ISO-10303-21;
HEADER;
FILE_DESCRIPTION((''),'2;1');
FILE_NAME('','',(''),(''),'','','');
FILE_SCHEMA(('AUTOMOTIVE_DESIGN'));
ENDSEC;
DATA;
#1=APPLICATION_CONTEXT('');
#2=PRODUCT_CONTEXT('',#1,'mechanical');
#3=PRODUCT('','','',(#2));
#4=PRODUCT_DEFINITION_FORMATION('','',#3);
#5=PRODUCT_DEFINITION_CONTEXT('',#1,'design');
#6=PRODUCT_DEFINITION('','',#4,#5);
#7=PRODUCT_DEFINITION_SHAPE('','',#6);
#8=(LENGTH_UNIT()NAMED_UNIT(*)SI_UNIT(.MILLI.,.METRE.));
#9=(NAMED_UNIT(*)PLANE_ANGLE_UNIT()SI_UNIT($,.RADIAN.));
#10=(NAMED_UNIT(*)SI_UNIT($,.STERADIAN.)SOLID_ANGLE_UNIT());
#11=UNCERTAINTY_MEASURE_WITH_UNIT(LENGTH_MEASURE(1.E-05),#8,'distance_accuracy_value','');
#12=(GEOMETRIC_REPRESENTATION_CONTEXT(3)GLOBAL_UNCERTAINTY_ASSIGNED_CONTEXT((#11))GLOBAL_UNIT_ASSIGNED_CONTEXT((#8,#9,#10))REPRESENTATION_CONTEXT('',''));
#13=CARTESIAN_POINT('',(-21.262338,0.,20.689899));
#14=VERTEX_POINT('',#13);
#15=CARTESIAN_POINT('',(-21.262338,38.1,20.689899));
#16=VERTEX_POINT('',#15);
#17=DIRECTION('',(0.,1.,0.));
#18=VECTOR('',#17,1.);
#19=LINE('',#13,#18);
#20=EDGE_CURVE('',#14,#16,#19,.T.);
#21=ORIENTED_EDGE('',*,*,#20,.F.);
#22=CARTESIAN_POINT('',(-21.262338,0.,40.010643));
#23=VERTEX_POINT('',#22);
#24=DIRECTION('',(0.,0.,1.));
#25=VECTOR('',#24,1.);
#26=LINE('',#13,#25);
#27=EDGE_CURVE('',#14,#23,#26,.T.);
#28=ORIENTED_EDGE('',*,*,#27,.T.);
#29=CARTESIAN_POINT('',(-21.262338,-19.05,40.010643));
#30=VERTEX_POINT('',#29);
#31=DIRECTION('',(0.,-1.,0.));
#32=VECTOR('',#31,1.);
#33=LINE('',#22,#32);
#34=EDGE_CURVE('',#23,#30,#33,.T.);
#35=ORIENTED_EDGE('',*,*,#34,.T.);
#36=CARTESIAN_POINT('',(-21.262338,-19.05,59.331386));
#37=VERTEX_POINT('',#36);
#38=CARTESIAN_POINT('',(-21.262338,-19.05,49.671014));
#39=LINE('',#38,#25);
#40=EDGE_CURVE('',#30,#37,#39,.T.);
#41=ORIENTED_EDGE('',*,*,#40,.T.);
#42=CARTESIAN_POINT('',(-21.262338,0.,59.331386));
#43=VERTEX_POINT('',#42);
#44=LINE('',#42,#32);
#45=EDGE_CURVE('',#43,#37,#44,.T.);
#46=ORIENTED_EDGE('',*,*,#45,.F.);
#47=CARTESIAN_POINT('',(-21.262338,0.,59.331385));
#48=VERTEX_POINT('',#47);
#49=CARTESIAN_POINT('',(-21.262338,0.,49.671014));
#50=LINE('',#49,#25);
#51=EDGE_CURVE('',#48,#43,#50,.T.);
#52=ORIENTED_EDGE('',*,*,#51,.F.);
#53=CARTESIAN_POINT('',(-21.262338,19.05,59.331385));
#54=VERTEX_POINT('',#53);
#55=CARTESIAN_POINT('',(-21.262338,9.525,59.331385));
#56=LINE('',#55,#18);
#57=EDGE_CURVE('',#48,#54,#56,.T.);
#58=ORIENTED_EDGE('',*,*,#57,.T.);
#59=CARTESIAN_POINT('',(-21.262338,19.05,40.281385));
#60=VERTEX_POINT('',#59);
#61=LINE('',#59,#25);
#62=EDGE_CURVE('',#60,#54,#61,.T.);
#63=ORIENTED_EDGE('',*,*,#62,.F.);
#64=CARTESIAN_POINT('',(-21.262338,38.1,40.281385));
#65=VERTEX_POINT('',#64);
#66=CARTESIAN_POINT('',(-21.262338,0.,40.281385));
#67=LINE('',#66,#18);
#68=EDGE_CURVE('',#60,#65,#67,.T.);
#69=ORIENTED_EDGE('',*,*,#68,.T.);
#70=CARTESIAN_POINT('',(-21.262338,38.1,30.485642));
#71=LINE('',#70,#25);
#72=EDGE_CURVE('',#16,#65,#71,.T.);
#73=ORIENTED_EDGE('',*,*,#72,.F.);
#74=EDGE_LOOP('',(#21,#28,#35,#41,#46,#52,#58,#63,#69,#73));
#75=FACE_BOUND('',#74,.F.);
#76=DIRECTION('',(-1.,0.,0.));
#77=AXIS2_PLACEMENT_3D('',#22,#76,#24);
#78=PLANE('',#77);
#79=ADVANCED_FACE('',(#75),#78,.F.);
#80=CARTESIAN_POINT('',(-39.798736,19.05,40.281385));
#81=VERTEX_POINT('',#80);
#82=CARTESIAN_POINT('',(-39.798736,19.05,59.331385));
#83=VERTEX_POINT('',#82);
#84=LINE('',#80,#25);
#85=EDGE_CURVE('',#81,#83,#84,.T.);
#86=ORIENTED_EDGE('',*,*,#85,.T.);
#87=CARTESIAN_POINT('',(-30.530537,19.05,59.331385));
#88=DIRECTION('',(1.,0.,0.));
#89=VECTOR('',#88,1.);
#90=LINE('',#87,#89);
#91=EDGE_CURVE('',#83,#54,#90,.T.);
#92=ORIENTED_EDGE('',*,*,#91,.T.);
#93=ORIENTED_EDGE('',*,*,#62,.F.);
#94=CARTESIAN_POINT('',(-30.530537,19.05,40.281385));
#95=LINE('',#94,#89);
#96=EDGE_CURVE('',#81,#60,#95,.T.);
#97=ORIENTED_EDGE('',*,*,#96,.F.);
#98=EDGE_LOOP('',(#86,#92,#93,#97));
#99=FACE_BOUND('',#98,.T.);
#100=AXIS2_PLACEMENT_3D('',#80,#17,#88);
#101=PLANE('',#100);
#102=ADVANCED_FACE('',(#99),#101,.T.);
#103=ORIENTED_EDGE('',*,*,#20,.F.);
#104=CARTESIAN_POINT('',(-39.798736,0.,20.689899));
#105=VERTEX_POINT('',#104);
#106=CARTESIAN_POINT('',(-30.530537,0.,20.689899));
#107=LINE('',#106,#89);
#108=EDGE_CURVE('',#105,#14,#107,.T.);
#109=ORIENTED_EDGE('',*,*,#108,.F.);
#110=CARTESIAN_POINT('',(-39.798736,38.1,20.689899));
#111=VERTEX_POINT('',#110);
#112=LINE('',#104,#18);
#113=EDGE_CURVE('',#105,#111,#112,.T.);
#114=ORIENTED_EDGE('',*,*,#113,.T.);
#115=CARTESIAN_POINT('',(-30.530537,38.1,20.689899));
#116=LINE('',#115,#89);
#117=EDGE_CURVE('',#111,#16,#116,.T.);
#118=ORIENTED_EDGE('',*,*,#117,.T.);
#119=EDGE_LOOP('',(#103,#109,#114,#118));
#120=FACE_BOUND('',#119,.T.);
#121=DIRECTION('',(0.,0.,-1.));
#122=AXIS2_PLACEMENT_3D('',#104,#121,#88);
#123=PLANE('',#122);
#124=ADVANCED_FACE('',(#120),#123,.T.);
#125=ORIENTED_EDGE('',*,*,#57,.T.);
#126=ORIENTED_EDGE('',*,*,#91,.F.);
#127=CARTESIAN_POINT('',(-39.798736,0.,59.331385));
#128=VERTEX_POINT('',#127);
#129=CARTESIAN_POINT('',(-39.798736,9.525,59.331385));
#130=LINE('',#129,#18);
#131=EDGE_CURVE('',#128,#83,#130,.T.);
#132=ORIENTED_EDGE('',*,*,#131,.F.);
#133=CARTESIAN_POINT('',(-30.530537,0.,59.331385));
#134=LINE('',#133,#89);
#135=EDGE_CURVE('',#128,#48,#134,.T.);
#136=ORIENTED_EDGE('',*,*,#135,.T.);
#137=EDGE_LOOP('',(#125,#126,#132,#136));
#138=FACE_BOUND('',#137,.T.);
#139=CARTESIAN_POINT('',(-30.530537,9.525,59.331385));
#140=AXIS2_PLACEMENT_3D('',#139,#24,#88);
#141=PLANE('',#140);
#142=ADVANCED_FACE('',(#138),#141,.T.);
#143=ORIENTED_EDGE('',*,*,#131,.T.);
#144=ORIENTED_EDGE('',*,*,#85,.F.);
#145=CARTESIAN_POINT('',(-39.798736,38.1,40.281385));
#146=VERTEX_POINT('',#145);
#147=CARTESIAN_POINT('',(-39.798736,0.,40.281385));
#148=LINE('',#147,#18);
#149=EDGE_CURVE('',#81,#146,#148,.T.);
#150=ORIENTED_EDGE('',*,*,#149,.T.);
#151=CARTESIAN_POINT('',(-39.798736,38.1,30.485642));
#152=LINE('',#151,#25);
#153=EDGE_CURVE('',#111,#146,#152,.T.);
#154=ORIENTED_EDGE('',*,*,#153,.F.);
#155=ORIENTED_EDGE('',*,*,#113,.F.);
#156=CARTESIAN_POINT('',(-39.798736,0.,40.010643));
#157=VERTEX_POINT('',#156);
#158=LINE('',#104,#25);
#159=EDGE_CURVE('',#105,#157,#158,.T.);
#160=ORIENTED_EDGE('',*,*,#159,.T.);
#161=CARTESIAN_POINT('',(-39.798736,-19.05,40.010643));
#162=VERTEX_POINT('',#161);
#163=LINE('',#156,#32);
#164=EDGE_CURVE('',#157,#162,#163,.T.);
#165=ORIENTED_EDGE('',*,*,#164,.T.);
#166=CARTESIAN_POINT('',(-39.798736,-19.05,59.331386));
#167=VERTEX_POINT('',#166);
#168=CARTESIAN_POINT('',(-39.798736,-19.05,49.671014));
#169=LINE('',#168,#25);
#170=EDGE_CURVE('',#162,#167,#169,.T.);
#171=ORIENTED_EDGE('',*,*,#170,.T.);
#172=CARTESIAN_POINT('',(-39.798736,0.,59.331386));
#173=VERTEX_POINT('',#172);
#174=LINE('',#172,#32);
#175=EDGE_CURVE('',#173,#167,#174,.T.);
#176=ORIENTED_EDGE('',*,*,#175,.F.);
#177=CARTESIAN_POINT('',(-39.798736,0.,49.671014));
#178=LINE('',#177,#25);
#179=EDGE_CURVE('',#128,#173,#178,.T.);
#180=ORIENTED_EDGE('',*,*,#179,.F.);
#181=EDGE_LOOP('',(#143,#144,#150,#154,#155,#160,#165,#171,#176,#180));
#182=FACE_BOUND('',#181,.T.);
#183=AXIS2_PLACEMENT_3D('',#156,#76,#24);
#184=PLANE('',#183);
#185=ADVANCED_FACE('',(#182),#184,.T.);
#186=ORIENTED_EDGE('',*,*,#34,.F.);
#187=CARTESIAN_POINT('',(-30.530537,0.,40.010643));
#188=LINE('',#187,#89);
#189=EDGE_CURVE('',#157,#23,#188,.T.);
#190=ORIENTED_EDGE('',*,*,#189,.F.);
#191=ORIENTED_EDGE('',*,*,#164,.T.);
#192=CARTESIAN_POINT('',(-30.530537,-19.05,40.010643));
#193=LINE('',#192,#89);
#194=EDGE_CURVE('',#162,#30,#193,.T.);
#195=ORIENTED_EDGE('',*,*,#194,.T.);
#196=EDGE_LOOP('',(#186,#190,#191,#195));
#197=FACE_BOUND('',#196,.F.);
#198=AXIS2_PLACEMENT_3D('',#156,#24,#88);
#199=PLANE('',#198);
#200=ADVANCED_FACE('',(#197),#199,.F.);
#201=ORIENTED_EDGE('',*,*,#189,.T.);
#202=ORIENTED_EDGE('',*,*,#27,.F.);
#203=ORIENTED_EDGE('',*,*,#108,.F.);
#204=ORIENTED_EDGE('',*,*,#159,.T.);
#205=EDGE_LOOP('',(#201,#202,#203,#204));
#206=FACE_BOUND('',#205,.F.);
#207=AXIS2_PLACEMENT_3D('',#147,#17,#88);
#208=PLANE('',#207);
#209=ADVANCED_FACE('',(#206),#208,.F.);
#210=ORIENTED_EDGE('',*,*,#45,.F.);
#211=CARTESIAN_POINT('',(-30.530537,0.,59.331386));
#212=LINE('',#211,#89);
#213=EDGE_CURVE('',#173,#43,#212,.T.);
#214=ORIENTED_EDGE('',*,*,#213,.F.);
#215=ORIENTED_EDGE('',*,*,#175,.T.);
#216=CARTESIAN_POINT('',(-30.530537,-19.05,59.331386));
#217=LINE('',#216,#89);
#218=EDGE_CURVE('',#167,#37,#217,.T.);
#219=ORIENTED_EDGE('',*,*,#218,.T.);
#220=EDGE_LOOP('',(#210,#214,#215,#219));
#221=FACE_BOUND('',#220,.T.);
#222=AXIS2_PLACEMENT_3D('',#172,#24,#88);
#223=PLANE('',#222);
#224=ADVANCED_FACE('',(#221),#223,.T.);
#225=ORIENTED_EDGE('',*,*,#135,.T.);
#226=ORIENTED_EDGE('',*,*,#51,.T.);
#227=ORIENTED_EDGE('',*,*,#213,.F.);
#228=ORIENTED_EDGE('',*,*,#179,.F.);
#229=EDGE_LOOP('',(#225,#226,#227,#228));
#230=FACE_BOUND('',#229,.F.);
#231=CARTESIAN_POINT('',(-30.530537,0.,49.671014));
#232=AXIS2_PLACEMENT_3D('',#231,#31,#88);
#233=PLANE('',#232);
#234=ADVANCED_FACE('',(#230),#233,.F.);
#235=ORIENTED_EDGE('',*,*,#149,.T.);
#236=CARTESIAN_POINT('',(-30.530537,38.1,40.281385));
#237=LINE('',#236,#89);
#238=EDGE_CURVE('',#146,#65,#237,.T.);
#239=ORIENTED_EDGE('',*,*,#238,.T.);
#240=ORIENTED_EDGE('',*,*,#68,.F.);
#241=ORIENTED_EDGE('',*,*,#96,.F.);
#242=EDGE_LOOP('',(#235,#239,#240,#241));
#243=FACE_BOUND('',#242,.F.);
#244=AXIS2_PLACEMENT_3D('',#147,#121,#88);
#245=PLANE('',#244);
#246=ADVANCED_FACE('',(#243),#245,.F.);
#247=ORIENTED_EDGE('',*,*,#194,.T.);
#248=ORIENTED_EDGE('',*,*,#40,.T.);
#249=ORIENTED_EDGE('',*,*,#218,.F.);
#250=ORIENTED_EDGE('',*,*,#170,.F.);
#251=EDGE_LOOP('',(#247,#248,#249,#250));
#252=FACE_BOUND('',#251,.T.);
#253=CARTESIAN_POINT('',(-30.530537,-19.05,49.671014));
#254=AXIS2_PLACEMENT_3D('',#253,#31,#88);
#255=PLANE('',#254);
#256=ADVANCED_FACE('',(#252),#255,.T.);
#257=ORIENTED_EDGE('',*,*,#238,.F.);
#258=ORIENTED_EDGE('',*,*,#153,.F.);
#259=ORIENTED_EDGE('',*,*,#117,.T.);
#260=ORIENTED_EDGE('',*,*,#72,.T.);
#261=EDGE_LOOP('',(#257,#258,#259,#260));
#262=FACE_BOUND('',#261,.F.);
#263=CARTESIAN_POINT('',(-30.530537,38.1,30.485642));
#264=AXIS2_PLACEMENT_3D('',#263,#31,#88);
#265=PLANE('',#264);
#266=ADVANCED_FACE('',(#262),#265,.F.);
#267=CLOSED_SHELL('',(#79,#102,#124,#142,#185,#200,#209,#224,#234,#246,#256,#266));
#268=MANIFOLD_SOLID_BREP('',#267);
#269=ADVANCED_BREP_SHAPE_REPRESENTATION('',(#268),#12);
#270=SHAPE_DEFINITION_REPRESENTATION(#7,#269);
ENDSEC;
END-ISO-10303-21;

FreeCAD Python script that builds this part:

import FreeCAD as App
import Part
import Sketcher
from FreeCAD import Vector
Q = App.Units.Quantity


def add_polygon(sketch, points):
    """Adds a closed chain of lines whose ends are joined by coincident constraints."""
    first, n = sketch.GeometryCount, len(points)
    for a, b in zip(points, points[1:] + points[:1]):
        sketch.addGeometry(Part.LineSegment(App.Vector(*a, 0), App.Vector(*b, 0)), False)
    for i in range(n):
        sketch.addConstraint(Sketcher.Constraint("Coincident", first + i, 2, first + (i + 1) % n, 1))

doc = App.newDocument("Part")
body = doc.addObject("PartDesign::Body", "Body")

sketch1 = body.newObject("Sketcher::SketchObject", "Sketch")
sketch1.AttachmentSupport = (doc.getObject("XZ_Plane"), [""])
sketch1.MapMode = "FlatFace"
add_polygon(sketch1, [(-39.798736, 40.281385), (-39.798736, 20.689899), (-21.262338, 20.689899), (-21.262338, 40.281385)])
sketch1.addConstraint([
    Sketcher.Constraint("Vertical", 0),
    Sketcher.Constraint("Horizontal", 1),
    Sketcher.Constraint("Vertical", 2),
    Sketcher.Constraint("Horizontal", 3),
    Sketcher.Constraint("DistanceX", 1, 1, 1, 2, Q("18.536399 mm")),
    Sketcher.Constraint("DistanceX", 1, 2, -1, 1, Q("0.8370999 in")),
    Sketcher.Constraint("DistanceY", -1, 1, 0, 2, Q("20.689899 mm")),
    Sketcher.Constraint("DistanceY", 0, 2, 0, 1, Q("19.591486 mm")),
])
pad1 = body.newObject("PartDesign::Pad", "Pad")
pad1.Profile = sketch1
pad1.Length = Q("1.5 in")
pad1.Reversed = True

sketch2 = body.newObject("Sketcher::SketchObject", "Sketch001")
sketch2.AttachmentSupport = (doc.getObject("XY_Plane"), [""])
sketch2.MapMode = "FlatFace"
sketch2.AttachmentOffset = App.Placement(Vector(0, 0, 40.281385), App.Rotation())
add_polygon(sketch2, [(-39.798736, 19.05), (-39.798736, 0), (-21.262338, 0), (-21.262338, 19.05)])
sketch2.addConstraint([
    Sketcher.Constraint("Vertical", 0),
    Sketcher.Constraint("Horizontal", 1),
    Sketcher.Constraint("Vertical", 2),
    Sketcher.Constraint("Horizontal", 3),
    Sketcher.Constraint("PointOnObject", 0, 2, -1),
    Sketcher.Constraint("DistanceY", 0, 2, 0, 1, Q("0.75 in")),
    Sketcher.Constraint("DistanceX", 1, 1, 1, 2, Q("18.536399 mm")),
    Sketcher.Constraint("DistanceX", 1, 2, -1, 1, Q("0.8370999 in")),
])
pad2 = body.newObject("PartDesign::Pad", "Pad001")
pad2.Profile = sketch2
pad2.Length = Q("0.75 in")

sketch3 = body.newObject("Sketcher::SketchObject", "Sketch002")
sketch3.AttachmentSupport = (doc.getObject("XZ_Plane"), [""])
sketch3.MapMode = "FlatFace"
add_polygon(sketch3, [(-39.798736, 59.331386), (-39.798736, 40.010643), (-21.262338, 40.010643), (-21.262338, 59.331386)])
sketch3.addConstraint([
    Sketcher.Constraint("Vertical", 0),
    Sketcher.Constraint("Horizontal", 1),
    Sketcher.Constraint("Vertical", 2),
    Sketcher.Constraint("Horizontal", 3),
    Sketcher.Constraint("DistanceX", 1, 1, 1, 2, Q("18.536399 mm")),
    Sketcher.Constraint("DistanceX", 1, 2, -1, 1, Q("0.8370999 in")),
    Sketcher.Constraint("DistanceY", 0, 2, 0, 1, Q("19.320743 mm")),
    Sketcher.Constraint("DistanceY", -1, 1, 0, 2, Q("40.010643 mm")),
])
pad3 = body.newObject("PartDesign::Pad", "Pad002")
pad3.Profile = sketch3
pad3.Length = Q("0.75 in")

doc.recompute()
